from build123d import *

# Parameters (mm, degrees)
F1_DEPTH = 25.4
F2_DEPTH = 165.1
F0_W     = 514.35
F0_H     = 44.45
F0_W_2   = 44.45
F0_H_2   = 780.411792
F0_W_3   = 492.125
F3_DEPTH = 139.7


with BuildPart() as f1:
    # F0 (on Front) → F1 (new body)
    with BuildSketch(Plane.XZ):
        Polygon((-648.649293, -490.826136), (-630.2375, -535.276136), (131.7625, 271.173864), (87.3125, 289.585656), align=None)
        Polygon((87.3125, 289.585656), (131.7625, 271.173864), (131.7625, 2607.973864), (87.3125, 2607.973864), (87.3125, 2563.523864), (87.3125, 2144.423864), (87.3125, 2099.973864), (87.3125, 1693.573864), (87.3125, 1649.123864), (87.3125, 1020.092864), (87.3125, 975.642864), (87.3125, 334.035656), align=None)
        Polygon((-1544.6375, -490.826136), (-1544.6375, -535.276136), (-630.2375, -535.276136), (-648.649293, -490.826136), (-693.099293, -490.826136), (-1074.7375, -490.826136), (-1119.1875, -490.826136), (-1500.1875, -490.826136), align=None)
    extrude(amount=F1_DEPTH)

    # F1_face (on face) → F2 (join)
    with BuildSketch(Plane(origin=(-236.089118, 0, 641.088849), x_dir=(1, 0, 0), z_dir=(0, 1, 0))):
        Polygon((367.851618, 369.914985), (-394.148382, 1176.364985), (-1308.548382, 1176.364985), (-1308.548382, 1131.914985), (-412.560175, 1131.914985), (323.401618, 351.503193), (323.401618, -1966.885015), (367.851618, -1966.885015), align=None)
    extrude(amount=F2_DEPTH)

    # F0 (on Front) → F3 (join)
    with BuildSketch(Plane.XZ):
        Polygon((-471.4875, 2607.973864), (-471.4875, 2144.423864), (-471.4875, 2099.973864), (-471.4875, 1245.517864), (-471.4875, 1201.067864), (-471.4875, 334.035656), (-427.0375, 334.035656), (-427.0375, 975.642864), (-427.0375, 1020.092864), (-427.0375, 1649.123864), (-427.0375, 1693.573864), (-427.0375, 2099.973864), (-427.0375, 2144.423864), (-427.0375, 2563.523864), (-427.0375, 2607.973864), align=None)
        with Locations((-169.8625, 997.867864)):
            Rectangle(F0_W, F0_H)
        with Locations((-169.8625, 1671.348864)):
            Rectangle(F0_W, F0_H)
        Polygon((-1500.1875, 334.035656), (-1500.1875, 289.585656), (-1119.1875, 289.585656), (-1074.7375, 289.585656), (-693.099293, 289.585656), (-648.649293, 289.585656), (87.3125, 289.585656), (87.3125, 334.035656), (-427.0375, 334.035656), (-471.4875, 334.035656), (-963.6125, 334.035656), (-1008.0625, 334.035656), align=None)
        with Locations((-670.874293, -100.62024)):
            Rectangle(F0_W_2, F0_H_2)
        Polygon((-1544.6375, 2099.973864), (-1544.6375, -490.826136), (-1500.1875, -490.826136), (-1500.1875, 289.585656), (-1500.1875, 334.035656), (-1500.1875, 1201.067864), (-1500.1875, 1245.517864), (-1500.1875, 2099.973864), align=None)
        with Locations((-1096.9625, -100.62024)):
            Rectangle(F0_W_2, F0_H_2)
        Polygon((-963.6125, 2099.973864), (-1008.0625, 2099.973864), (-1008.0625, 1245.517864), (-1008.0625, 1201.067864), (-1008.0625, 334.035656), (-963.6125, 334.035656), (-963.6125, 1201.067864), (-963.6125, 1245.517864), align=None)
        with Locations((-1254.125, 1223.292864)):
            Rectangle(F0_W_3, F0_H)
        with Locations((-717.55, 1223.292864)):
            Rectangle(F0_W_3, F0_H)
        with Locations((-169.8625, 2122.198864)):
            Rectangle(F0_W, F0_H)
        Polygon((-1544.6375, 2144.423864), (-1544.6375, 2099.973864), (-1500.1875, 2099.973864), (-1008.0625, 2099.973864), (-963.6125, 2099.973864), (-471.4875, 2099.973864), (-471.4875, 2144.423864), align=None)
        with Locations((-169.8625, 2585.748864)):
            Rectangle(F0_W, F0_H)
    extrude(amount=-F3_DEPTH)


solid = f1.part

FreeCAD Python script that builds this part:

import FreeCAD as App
import Part
import Sketcher
Q = App.Units.Quantity

doc = App.newDocument("Part")
body = doc.addObject("PartDesign::Body", "Body")

# Sketch on XZ plane
sketch1 = body.newObject("Sketcher::SketchObject", "Sketch")
sketch1.AttachmentSupport = (doc.getObject("XZ_Plane"), [""])
sketch1.MapMode = "FlatFace"
sketch1.addGeometry(Part.LineSegment(App.Vector(-630.2375, -535.276136, 0), App.Vector(131.7625, 271.173864, 0)), False)
sketch1.addGeometry(Part.LineSegment(App.Vector(131.7625, 271.173864, 0), App.Vector(131.7625, 2607.973864, 0)), False)
sketch1.addGeometry(Part.LineSegment(App.Vector(131.7625, 2607.973864, 0), App.Vector(87.3125, 2607.973864, 0)), False)
sketch1.addGeometry(Part.LineSegment(App.Vector(87.3125, 2607.973864, 0), App.Vector(87.3125, 289.585656, 0)), False)
sketch1.addGeometry(Part.LineSegment(App.Vector(87.3125, 289.585656, 0), App.Vector(-648.649293, -490.826136, 0)), False)
sketch1.addGeometry(Part.LineSegment(App.Vector(-648.649293, -490.826136, 0), App.Vector(-1544.6375, -490.826136, 0)), False)
sketch1.addGeometry(Part.LineSegment(App.Vector(-1544.6375, -490.826136, 0), App.Vector(-1544.6375, -535.276136, 0)), False)
sketch1.addGeometry(Part.LineSegment(App.Vector(-1544.6375, -535.276136, 0), App.Vector(-630.2375, -535.276136, 0)), False)
sketch1.addConstraint(Sketcher.Constraint("Coincident", 0, 2, 1, 1))
sketch1.addConstraint(Sketcher.Constraint("Coincident", 1, 2, 2, 1))
sketch1.addConstraint(Sketcher.Constraint("Coincident", 2, 2, 3, 1))
sketch1.addConstraint(Sketcher.Constraint("Coincident", 3, 2, 4, 1))
sketch1.addConstraint(Sketcher.Constraint("Coincident", 4, 2, 5, 1))
sketch1.addConstraint(Sketcher.Constraint("Coincident", 5, 2, 6, 1))
sketch1.addConstraint(Sketcher.Constraint("Coincident", 6, 2, 7, 1))
sketch1.addConstraint(Sketcher.Constraint("Coincident", 7, 2, 0, 1))
sketch1.addConstraint(Sketcher.Constraint("Vertical", 1))
sketch1.addConstraint(Sketcher.Constraint("Horizontal", 2))
sketch1.addConstraint(Sketcher.Constraint("Vertical", 3))
sketch1.addConstraint(Sketcher.Constraint("Horizontal", 5))
sketch1.addConstraint(Sketcher.Constraint("Vertical", 6))
sketch1.addConstraint(Sketcher.Constraint("Horizontal", 7))
sketch1.addConstraint(Sketcher.Constraint("Equal", 2, 6))
sketch1.addConstraint(Sketcher.Constraint("DistanceX", 7, 1, 7, 2, Q("36 in")))
sketch1.addConstraint(Sketcher.Constraint("DistanceY", 1, 1, 1, 2, Q("92 in")))
sketch1.addConstraint(Sketcher.Constraint("DistanceY", 4, 2, 0, 2, Q("30 in")))
sketch1.addConstraint(Sketcher.Constraint("DistanceX", 5, 2, 0, 2, Q("66 in")))
sketch1.addConstraint(Sketcher.Constraint("DistanceX", 2, 2, 2, 1, Q("1.75 in")))
sketch1.addConstraint(Sketcher.Constraint("DistanceX", -1, 1, 0, 2, Q("5.1875 in")))
sketch1.addConstraint(Sketcher.Constraint("DistanceY", 3, 2, 3, 1, Q("2318.388208 mm")))
sketch1.addConstraint(Sketcher.Constraint("Distance", 4, Q("1072.698618 mm")))
sketch1.addConstraint(Sketcher.Constraint("DistanceY", -1, 1, 0, 2, Q("271.173864 mm")))
pad1 = body.newObject("PartDesign::Pad", "Pad")
pad1.Profile = sketch1
pad1.Length = Q("1 in")

# Sketch on XZ plane
sketch2 = body.newObject("Sketcher::SketchObject", "Sketch001")
sketch2.AttachmentSupport = (doc.getObject("XZ_Plane"), [""])
sketch2.MapMode = "FlatFace"
sketch2.addGeometry(Part.LineSegment(App.Vector(131.7625, 271.173864, 0), App.Vector(-630.2375, -535.276136, 0)), False)
sketch2.addGeometry(Part.LineSegment(App.Vector(-630.2375, -535.276136, 0), App.Vector(-1544.6375, -535.276136, 0)), False)
sketch2.addGeometry(Part.LineSegment(App.Vector(-1544.6375, -535.276136, 0), App.Vector(-1544.6375, -490.826136, 0)), False)
sketch2.addGeometry(Part.LineSegment(App.Vector(-1544.6375, -490.826136, 0), App.Vector(-648.649293, -490.826136, 0)), False)
sketch2.addGeometry(Part.LineSegment(App.Vector(-648.649293, -490.826136, 0), App.Vector(87.3125, 289.585656, 0)), False)
sketch2.addGeometry(Part.LineSegment(App.Vector(87.3125, 289.585656, 0), App.Vector(87.3125, 2607.973864, 0)), False)
sketch2.addGeometry(Part.LineSegment(App.Vector(87.3125, 2607.973864, 0), App.Vector(131.7625, 2607.973864, 0)), False)
sketch2.addGeometry(Part.LineSegment(App.Vector(131.7625, 2607.973864, 0), App.Vector(131.7625, 271.173864, 0)), False)
sketch2.addConstraint(Sketcher.Constraint("Coincident", 0, 2, 1, 1))
sketch2.addConstraint(Sketcher.Constraint("Coincident", 1, 2, 2, 1))
sketch2.addConstraint(Sketcher.Constraint("Coincident", 2, 2, 3, 1))
sketch2.addConstraint(Sketcher.Constraint("Coincident", 3, 2, 4, 1))
sketch2.addConstraint(Sketcher.Constraint("Coincident", 4, 2, 5, 1))
sketch2.addConstraint(Sketcher.Constraint("Coincident", 5, 2, 6, 1))
sketch2.addConstraint(Sketcher.Constraint("Coincident", 6, 2, 7, 1))
sketch2.addConstraint(Sketcher.Constraint("Coincident", 7, 2, 0, 1))
sketch2.addConstraint(Sketcher.Constraint("Horizontal", 1))
sketch2.addConstraint(Sketcher.Constraint("Vertical", 2))
sketch2.addConstraint(Sketcher.Constraint("Horizontal", 3))
sketch2.addConstraint(Sketcher.Constraint("Vertical", 5))
sketch2.addConstraint(Sketcher.Constraint("Horizontal", 6))
sketch2.addConstraint(Sketcher.Constraint("Vertical", 7))
sketch2.addConstraint(Sketcher.Constraint("Equal", 6, 2))
sketch2.addConstraint(Sketcher.Constraint("DistanceX", 1, 2, 1, 1, Q("36 in")))
sketch2.addConstraint(Sketcher.Constraint("DistanceY", 7, 2, 7, 1, Q("92 in")))
sketch2.addConstraint(Sketcher.Constraint("DistanceY", 3, 2, 5, 2, Q("122 in")))
sketch2.addConstraint(Sketcher.Constraint("DistanceX", 0, 2, 6, 2, Q("30 in")))
sketch2.addConstraint(Sketcher.Constraint("DistanceX", 6, 1, 6, 2, Q("1.75 in")))
sketch2.addConstraint(Sketcher.Constraint("DistanceX", 0, 2, -1, 1, Q("24.8125 in")))
sketch2.addConstraint(Sketcher.Constraint("DistanceY", 5, 1, 5, 2, Q("2318.388208 mm")))
sketch2.addConstraint(Sketcher.Constraint("Distance", 4, Q("1072.698618 mm")))
sketch2.addConstraint(Sketcher.Constraint("DistanceY", 0, 2, -1, 1, Q("535.276136 mm")))
pad2 = body.newObject("PartDesign::Pad", "Pad001")
pad2.Profile = sketch2
pad2.Length = Q("6.5 in")
pad2.Reversed = True

# Sketch on XZ plane
sketch3 = body.newObject("Sketcher::SketchObject", "Sketch002")
sketch3.AttachmentSupport = (doc.getObject("XZ_Plane"), [""])
sketch3.MapMode = "FlatFace"
sketch3.addGeometry(Part.LineSegment(App.Vector(-471.4875, 2607.973864, 0), App.Vector(-471.4875, 2144.423864, 0)), False)
sketch3.addGeometry(Part.LineSegment(App.Vector(-471.4875, 2144.423864, 0), App.Vector(-1544.6375, 2144.423864, 0)), False)
sketch3.addGeometry(Part.LineSegment(App.Vector(-1544.6375, 2144.423864, 0), App.Vector(-1544.6375, -490.826136, 0)), False)
sketch3.addGeometry(Part.LineSegment(App.Vector(-1544.6375, -490.826136, 0), App.Vector(-1500.1875, -490.826136, 0)), False)
sketch3.addGeometry(Part.LineSegment(App.Vector(-1500.1875, -490.826136, 0), App.Vector(-1500.1875, 289.585656, 0)), False)
sketch3.addGeometry(Part.LineSegment(App.Vector(-1500.1875, 289.585656, 0), App.Vector(-1119.1875, 289.585656, 0)), False)
sketch3.addGeometry(Part.LineSegment(App.Vector(-1119.1875, 289.585656, 0), App.Vector(-1119.1875, -490.826136, 0)), False)
sketch3.addGeometry(Part.LineSegment(App.Vector(-1119.1875, -490.826136, 0), App.Vector(-1074.7375, -490.826136, 0)), False)
sketch3.addGeometry(Part.LineSegment(App.Vector(-1074.7375, -490.826136, 0), App.Vector(-1074.7375, 289.585656, 0)), False)
sketch3.addGeometry(Part.LineSegment(App.Vector(-1074.7375, 289.585656, 0), App.Vector(-693.099293, 289.585656, 0)), False)
sketch3.addGeometry(Part.LineSegment(App.Vector(-693.099293, 289.585656, 0), App.Vector(-693.099293, -490.826136, 0)), False)
sketch3.addGeometry(Part.LineSegment(App.Vector(-693.099293, -490.826136, 0), App.Vector(-648.649293, -490.826136, 0)), False)
sketch3.addGeometry(Part.LineSegment(App.Vector(-648.649293, -490.826136, 0), App.Vector(-648.649293, 289.585656, 0)), False)
sketch3.addGeometry(Part.LineSegment(App.Vector(-648.649293, 289.585656, 0), App.Vector(87.3125, 289.585656, 0)), False)
sketch3.addGeometry(Part.LineSegment(App.Vector(87.3125, 289.585656, 0), App.Vector(87.3125, 334.035656, 0)), False)
sketch3.addGeometry(Part.LineSegment(App.Vector(87.3125, 334.035656, 0), App.Vector(-427.0375, 334.035656, 0)), False)
sketch3.addGeometry(Part.LineSegment(App.Vector(-427.0375, 334.035656, 0), App.Vector(-427.0375, 975.642864, 0)), False)
sketch3.addGeometry(Part.LineSegment(App.Vector(-427.0375, 975.642864, 0), App.Vector(87.3125, 975.642864, 0)), False)
sketch3.addGeometry(Part.LineSegment(App.Vector(87.3125, 975.642864, 0), App.Vector(87.3125, 1020.092864, 0)), False)
sketch3.addGeometry(Part.LineSegment(App.Vector(87.3125, 1020.092864, 0), App.Vector(-427.0375, 1020.092864, 0)), False)
sketch3.addGeometry(Part.LineSegment(App.Vector(-427.0375, 1020.092864, 0), App.Vector(-427.0375, 1649.123864, 0)), False)
sketch3.addGeometry(Part.LineSegment(App.Vector(-427.0375, 1649.123864, 0), App.Vector(87.3125, 1649.123864, 0)), False)
sketch3.addGeometry(Part.LineSegment(App.Vector(87.3125, 1649.123864, 0), App.Vector(87.3125, 1693.573864, 0)), False)
sketch3.addGeometry(Part.LineSegment(App.Vector(87.3125, 1693.573864, 0), App.Vector(-427.0375, 1693.573864, 0)), False)
sketch3.addGeometry(Part.LineSegment(App.Vector(-427.0375, 1693.573864, 0), App.Vector(-427.0375, 2099.973864, 0)), False)
sketch3.addGeometry(Part.LineSegment(App.Vector(-427.0375, 2099.973864, 0), App.Vector(87.3125, 2099.973864, 0)), False)
sketch3.addGeometry(Part.LineSegment(App.Vector(87.3125, 2099.973864, 0), App.Vector(87.3125, 2144.423864, 0)), False)
sketch3.addGeometry(Part.LineSegment(App.Vector(87.3125, 2144.423864, 0), App.Vector(-427.0375, 2144.423864, 0)), False)
sketch3.addGeometry(Part.LineSegment(App.Vector(-427.0375, 2144.423864, 0), App.Vector(-427.0375, 2563.523864, 0)), False)
sketch3.addGeometry(Part.LineSegment(App.Vector(-427.0375, 2563.523864, 0), App.Vector(87.3125, 2563.523864, 0)), False)
sketch3.addGeometry(Part.LineSegment(App.Vector(87.3125, 2563.523864, 0), App.Vector(87.3125, 2607.973864, 0)), False)
sketch3.addGeometry(Part.LineSegment(App.Vector(87.3125, 2607.973864, 0), App.Vector(-471.4875, 2607.973864, 0)), False)
sketch3.addGeometry(Part.LineSegment(App.Vector(-471.4875, 2099.973864, 0), App.Vector(-471.4875, 1245.517864, 0)), False)
sketch3.addGeometry(Part.LineSegment(App.Vector(-471.4875, 1245.517864, 0), App.Vector(-963.6125, 1245.517864, 0)), False)
sketch3.addGeometry(Part.LineSegment(App.Vector(-963.6125, 1245.517864, 0), App.Vector(-963.6125, 2099.973864, 0)), False)
sketch3.addGeometry(Part.LineSegment(App.Vector(-963.6125, 2099.973864, 0), App.Vector(-471.4875, 2099.973864, 0)), False)
sketch3.addGeometry(Part.LineSegment(App.Vector(-1008.0625, 2099.973864, 0), App.Vector(-1008.0625, 1245.517864, 0)), False)
sketch3.addGeometry(Part.LineSegment(App.Vector(-1008.0625, 1245.517864, 0), App.Vector(-1500.1875, 1245.517864, 0)), False)
sketch3.addGeometry(Part.LineSegment(App.Vector(-1500.1875, 1245.517864, 0), App.Vector(-1500.1875, 2099.973864, 0)), False)
sketch3.addGeometry(Part.LineSegment(App.Vector(-1500.1875, 2099.973864, 0), App.Vector(-1008.0625, 2099.973864, 0)), False)
sketch3.addGeometry(Part.LineSegment(App.Vector(-471.4875, 1201.067864, 0), App.Vector(-471.4875, 334.035656, 0)), False)
sketch3.addGeometry(Part.LineSegment(App.Vector(-471.4875, 334.035656, 0), App.Vector(-963.6125, 334.035656, 0)), False)
sketch3.addGeometry(Part.LineSegment(App.Vector(-963.6125, 334.035656, 0), App.Vector(-963.6125, 1201.067864, 0)), False)
sketch3.addGeometry(Part.LineSegment(App.Vector(-963.6125, 1201.067864, 0), App.Vector(-471.4875, 1201.067864, 0)), False)
sketch3.addGeometry(Part.LineSegment(App.Vector(-1008.0625, 1201.067864, 0), App.Vector(-1008.0625, 334.035656, 0)), False)
sketch3.addGeometry(Part.LineSegment(App.Vector(-1008.0625, 334.035656, 0), App.Vector(-1500.1875, 334.035656, 0)), False)
sketch3.addGeometry(Part.LineSegment(App.Vector(-1500.1875, 334.035656, 0), App.Vector(-1500.1875, 1201.067864, 0)), False)
sketch3.addGeometry(Part.LineSegment(App.Vector(-1500.1875, 1201.067864, 0), App.Vector(-1008.0625, 1201.067864, 0)), False)
sketch3.addConstraint(Sketcher.Constraint("Coincident", 0, 2, 1, 1))
sketch3.addConstraint(Sketcher.Constraint("Coincident", 1, 2, 2, 1))
sketch3.addConstraint(Sketcher.Constraint("Coincident", 2, 2, 3, 1))
sketch3.addConstraint(Sketcher.Constraint("Coincident", 3, 2, 4, 1))
sketch3.addConstraint(Sketcher.Constraint("Coincident", 4, 2, 5, 1))
sketch3.addConstraint(Sketcher.Constraint("Coincident", 5, 2, 6, 1))
sketch3.addConstraint(Sketcher.Constraint("Coincident", 6, 2, 7, 1))
sketch3.addConstraint(Sketcher.Constraint("Coincident", 7, 2, 8, 1))
sketch3.addConstraint(Sketcher.Constraint("Coincident", 8, 2, 9, 1))
sketch3.addConstraint(Sketcher.Constraint("Coincident", 9, 2, 10, 1))
sketch3.addConstraint(Sketcher.Constraint("Coincident", 10, 2, 11, 1))
sketch3.addConstraint(Sketcher.Constraint("Coincident", 11, 2, 12, 1))
sketch3.addConstraint(Sketcher.Constraint("Coincident", 12, 2, 13, 1))
sketch3.addConstraint(Sketcher.Constraint("Coincident", 13, 2, 14, 1))
sketch3.addConstraint(Sketcher.Constraint("Coincident", 14, 2, 15, 1))
sketch3.addConstraint(Sketcher.Constraint("Coincident", 15, 2, 16, 1))
sketch3.addConstraint(Sketcher.Constraint("Coincident", 16, 2, 17, 1))
sketch3.addConstraint(Sketcher.Constraint("Coincident", 17, 2, 18, 1))
sketch3.addConstraint(Sketcher.Constraint("Coincident", 18, 2, 19, 1))
sketch3.addConstraint(Sketcher.Constraint("Coincident", 19, 2, 20, 1))
sketch3.addConstraint(Sketcher.Constraint("Coincident", 20, 2, 21, 1))
sketch3.addConstraint(Sketcher.Constraint("Coincident", 21, 2, 22, 1))
sketch3.addConstraint(Sketcher.Constraint("Coincident", 22, 2, 23, 1))
sketch3.addConstraint(Sketcher.Constraint("Coincident", 23, 2, 24, 1))
sketch3.addConstraint(Sketcher.Constraint("Coincident", 24, 2, 25, 1))
sketch3.addConstraint(Sketcher.Constraint("Coincident", 25, 2, 26, 1))
sketch3.addConstraint(Sketcher.Constraint("Coincident", 26, 2, 27, 1))
sketch3.addConstraint(Sketcher.Constraint("Coincident", 27, 2, 28, 1))
sketch3.addConstraint(Sketcher.Constraint("Coincident", 28, 2, 29, 1))
sketch3.addConstraint(Sketcher.Constraint("Coincident", 29, 2, 30, 1))
sketch3.addConstraint(Sketcher.Constraint("Coincident", 30, 2, 31, 1))
sketch3.addConstraint(Sketcher.Constraint("Coincident", 31, 2, 0, 1))
sketch3.addConstraint(Sketcher.Constraint("Coincident", 32, 2, 33, 1))
sketch3.addConstraint(Sketcher.Constraint("Coincident", 33, 2, 34, 1))
sketch3.addConstraint(Sketcher.Constraint("Coincident", 34, 2, 35, 1))
sketch3.addConstraint(Sketcher.Constraint("Coincident", 35, 2, 32, 1))
sketch3.addConstraint(Sketcher.Constraint("Coincident", 36, 2, 37, 1))
sketch3.addConstraint(Sketcher.Constraint("Coincident", 37, 2, 38, 1))
sketch3.addConstraint(Sketcher.Constraint("Coincident", 38, 2, 39, 1))
sketch3.addConstraint(Sketcher.Constraint("Coincident", 39, 2, 36, 1))
sketch3.addConstraint(Sketcher.Constraint("Coincident", 40, 2, 41, 1))
sketch3.addConstraint(Sketcher.Constraint("Coincident", 41, 2, 42, 1))
sketch3.addConstraint(Sketcher.Constraint("Coincident", 42, 2, 43, 1))
sketch3.addConstraint(Sketcher.Constraint("Coincident", 43, 2, 40, 1))
sketch3.addConstraint(Sketcher.Constraint("Coincident", 44, 2, 45, 1))
sketch3.addConstraint(Sketcher.Constraint("Coincident", 45, 2, 46, 1))
sketch3.addConstraint(Sketcher.Constraint("Coincident", 46, 2, 47, 1))
sketch3.addConstraint(Sketcher.Constraint("Coincident", 47, 2, 44, 1))
sketch3.addConstraint(Sketcher.Constraint("Vertical", 0))
sketch3.addConstraint(Sketcher.Constraint("Horizontal", 1))
sketch3.addConstraint(Sketcher.Constraint("Vertical", 2))
sketch3.addConstraint(Sketcher.Constraint("Horizontal", 3))
sketch3.addConstraint(Sketcher.Constraint("Vertical", 4))
sketch3.addConstraint(Sketcher.Constraint("Horizontal", 5))
sketch3.addConstraint(Sketcher.Constraint("Vertical", 6))
sketch3.addConstraint(Sketcher.Constraint("Horizontal", 7))
sketch3.addConstraint(Sketcher.Constraint("Vertical", 8))
sketch3.addConstraint(Sketcher.Constraint("Horizontal", 9))
sketch3.addConstraint(Sketcher.Constraint("Vertical", 10))
sketch3.addConstraint(Sketcher.Constraint("Horizontal", 11))
sketch3.addConstraint(Sketcher.Constraint("Vertical", 12))
sketch3.addConstraint(Sketcher.Constraint("Horizontal", 13))
sketch3.addConstraint(Sketcher.Constraint("Vertical", 14))
sketch3.addConstraint(Sketcher.Constraint("Horizontal", 15))
sketch3.addConstraint(Sketcher.Constraint("Vertical", 16))
sketch3.addConstraint(Sketcher.Constraint("Horizontal", 17))
sketch3.addConstraint(Sketcher.Constraint("Vertical", 18))
sketch3.addConstraint(Sketcher.Constraint("Horizontal", 19))
sketch3.addConstraint(Sketcher.Constraint("Vertical", 20))
sketch3.addConstraint(Sketcher.Constraint("Horizontal", 21))
sketch3.addConstraint(Sketcher.Constraint("Vertical", 22))
sketch3.addConstraint(Sketcher.Constraint("Horizontal", 23))
sketch3.addConstraint(Sketcher.Constraint("Vertical", 24))
sketch3.addConstraint(Sketcher.Constraint("Horizontal", 25))
sketch3.addConstraint(Sketcher.Constraint("Vertical", 26))
sketch3.addConstraint(Sketcher.Constraint("Horizontal", 27))
sketch3.addConstraint(Sketcher.Constraint("Vertical", 28))
sketch3.addConstraint(Sketcher.Constraint("Horizontal", 29))
sketch3.addConstraint(Sketcher.Constraint("Vertical", 30))
sketch3.addConstraint(Sketcher.Constraint("Horizontal", 31))
sketch3.addConstraint(Sketcher.Constraint("Vertical", 32))
sketch3.addConstraint(Sketcher.Constraint("Horizontal", 33))
sketch3.addConstraint(Sketcher.Constraint("Vertical", 34))
sketch3.addConstraint(Sketcher.Constraint("Horizontal", 35))
sketch3.addConstraint(Sketcher.Constraint("Vertical", 36))
sketch3.addConstraint(Sketcher.Constraint("Horizontal", 37))
sketch3.addConstraint(Sketcher.Constraint("Vertical", 38))
sketch3.addConstraint(Sketcher.Constraint("Horizontal", 39))
sketch3.addConstraint(Sketcher.Constraint("Vertical", 40))
sketch3.addConstraint(Sketcher.Constraint("Horizontal", 41))
sketch3.addConstraint(Sketcher.Constraint("Vertical", 42))
sketch3.addConstraint(Sketcher.Constraint("Horizontal", 43))
sketch3.addConstraint(Sketcher.Constraint("Vertical", 44))
sketch3.addConstraint(Sketcher.Constraint("Horizontal", 45))
sketch3.addConstraint(Sketcher.Constraint("Vertical", 46))
sketch3.addConstraint(Sketcher.Constraint("Horizontal", 47))
sketch3.addConstraint(Sketcher.Constraint("Horizontal", 3, 2, 6, 2))
sketch3.addConstraint(Sketcher.Constraint("Horizontal", 5, 2, 8, 2))
sketch3.addConstraint(Sketcher.Constraint("Horizontal", 7, 2, 10, 2))
sketch3.addConstraint(Sketcher.Constraint("Horizontal", 9, 2, 12, 2))
sketch3.addConstraint(Sketcher.Constraint("Horizontal", 1, 2, 26, 2))
sketch3.addConstraint(Sketcher.Constraint("Horizontal", 25, 2, 34, 2))
sketch3.addConstraint(Sketcher.Constraint("Horizontal", 33, 2, 36, 2))
sketch3.addConstraint(Sketcher.Constraint("Horizontal", 35, 2, 38, 2))
sketch3.addConstraint(Sketcher.Constraint("Horizontal", 15, 2, 40, 2))
sketch3.addConstraint(Sketcher.Constraint("Horizontal", 41, 2, 44, 2))
sketch3.addConstraint(Sketcher.Constraint("Horizontal", 43, 2, 46, 2))
sketch3.addConstraint(Sketcher.Constraint("Vertical", 14, 2, 17, 2))
sketch3.addConstraint(Sketcher.Constraint("Vertical", 16, 2, 19, 2))
sketch3.addConstraint(Sketcher.Constraint("Vertical", 18, 2, 21, 2))
sketch3.addConstraint(Sketcher.Constraint("Vertical", 20, 2, 23, 2))
sketch3.addConstraint(Sketcher.Constraint("Vertical", 22, 2, 25, 2))
sketch3.addConstraint(Sketcher.Constraint("Vertical", 24, 2, 27, 2))
sketch3.addConstraint(Sketcher.Constraint("Vertical", 26, 2, 29, 2))
sketch3.addConstraint(Sketcher.Constraint("Vertical", 31, 2, 32, 2))
sketch3.addConstraint(Sketcher.Constraint("Vertical", 4, 2, 37, 2))
sketch3.addConstraint(Sketcher.Constraint("Vertical", 35, 2, 40, 2))
sketch3.addConstraint(Sketcher.Constraint("Vertical", 34, 2, 41, 2))
sketch3.addConstraint(Sketcher.Constraint("Vertical", 39, 2, 44, 2))
sketch3.addConstraint(Sketcher.Constraint("Vertical", 38, 2, 45, 2))
sketch3.addConstraint(Sketcher.Constraint("Equal", 3, 7))
sketch3.addConstraint(Sketcher.Constraint("Equal", 7, 11))
sketch3.addConstraint(Sketcher.Constraint("Equal", 35, 37))
sketch3.addConstraint(Sketcher.Constraint("Equal", 11, 14))
sketch3.addConstraint(Sketcher.Constraint("Equal", 14, 18))
sketch3.addConstraint(Sketcher.Constraint("Equal", 18, 22))
sketch3.addConstraint(Sketcher.Constraint("Equal", 22, 26))
sketch3.addConstraint(Sketcher.Constraint("Equal", 26, 30))
sketch3.addConstraint(Sketcher.Constraint("DistanceX", 5, 1, 5, 2, Q("15 in")))
sketch3.addConstraint(Sketcher.Constraint("DistanceX", 31, 2, 31, 1, Q("22 in")))
sketch3.addConstraint(Sketcher.Constraint("DistanceY", 24, 1, 24, 2, Q("16 in")))
sketch3.addConstraint(Sketcher.Constraint("DistanceY", 28, 1, 28, 2, Q("16.5 in")))
sketch3.addConstraint(Sketcher.Constraint("DistanceY", 25, 2, 30, 2, Q("20 in")))
sketch3.addConstraint(Sketcher.Constraint("DistanceX", 1, 2, 1, 1, Q("42.25 in")))
sketch3.addConstraint(Sketcher.Constraint("DistanceX", 15, 2, 15, 1, Q("20.25 in")))
sketch3.addConstraint(Sketcher.Constraint("DistanceY", 2, 2, 2, 1, Q("103.75 in")))
sketch3.addConstraint(Sketcher.Constraint("DistanceY", 32, 2, 32, 1, Q("33.64 in")))
sketch3.addConstraint(Sketcher.Constraint("DistanceX", 33, 2, 33, 1, Q("19.375 in")))
sketch3.addConstraint(Sketcher.Constraint("DistanceY", 20, 1, 20, 2, Q("24.765 in")))
sketch3.addConstraint(Sketcher.Constraint("DistanceY", 42, 2, 33, 2, Q("1.75 in")))
sketch3.addConstraint(Sketcher.Constraint("DistanceX", 0, 2, -1, 1, Q("18.5625 in")))
sketch3.addConstraint(Sketcher.Constraint("DistanceY", 4, 1, 4, 2, Q("780.411792 mm")))
sketch3.addConstraint(Sketcher.Constraint("DistanceX", 9, 1, 9, 2, Q("381.638207 mm")))
sketch3.addConstraint(Sketcher.Constraint("DistanceY", -1, 1, 0, 2, Q("2144.423864 mm")))
pad3 = body.newObject("PartDesign::Pad", "Pad002")
pad3.Profile = sketch3
pad3.Length = Q("5.5 in")
pad3.Reversed = True

doc.recompute()
